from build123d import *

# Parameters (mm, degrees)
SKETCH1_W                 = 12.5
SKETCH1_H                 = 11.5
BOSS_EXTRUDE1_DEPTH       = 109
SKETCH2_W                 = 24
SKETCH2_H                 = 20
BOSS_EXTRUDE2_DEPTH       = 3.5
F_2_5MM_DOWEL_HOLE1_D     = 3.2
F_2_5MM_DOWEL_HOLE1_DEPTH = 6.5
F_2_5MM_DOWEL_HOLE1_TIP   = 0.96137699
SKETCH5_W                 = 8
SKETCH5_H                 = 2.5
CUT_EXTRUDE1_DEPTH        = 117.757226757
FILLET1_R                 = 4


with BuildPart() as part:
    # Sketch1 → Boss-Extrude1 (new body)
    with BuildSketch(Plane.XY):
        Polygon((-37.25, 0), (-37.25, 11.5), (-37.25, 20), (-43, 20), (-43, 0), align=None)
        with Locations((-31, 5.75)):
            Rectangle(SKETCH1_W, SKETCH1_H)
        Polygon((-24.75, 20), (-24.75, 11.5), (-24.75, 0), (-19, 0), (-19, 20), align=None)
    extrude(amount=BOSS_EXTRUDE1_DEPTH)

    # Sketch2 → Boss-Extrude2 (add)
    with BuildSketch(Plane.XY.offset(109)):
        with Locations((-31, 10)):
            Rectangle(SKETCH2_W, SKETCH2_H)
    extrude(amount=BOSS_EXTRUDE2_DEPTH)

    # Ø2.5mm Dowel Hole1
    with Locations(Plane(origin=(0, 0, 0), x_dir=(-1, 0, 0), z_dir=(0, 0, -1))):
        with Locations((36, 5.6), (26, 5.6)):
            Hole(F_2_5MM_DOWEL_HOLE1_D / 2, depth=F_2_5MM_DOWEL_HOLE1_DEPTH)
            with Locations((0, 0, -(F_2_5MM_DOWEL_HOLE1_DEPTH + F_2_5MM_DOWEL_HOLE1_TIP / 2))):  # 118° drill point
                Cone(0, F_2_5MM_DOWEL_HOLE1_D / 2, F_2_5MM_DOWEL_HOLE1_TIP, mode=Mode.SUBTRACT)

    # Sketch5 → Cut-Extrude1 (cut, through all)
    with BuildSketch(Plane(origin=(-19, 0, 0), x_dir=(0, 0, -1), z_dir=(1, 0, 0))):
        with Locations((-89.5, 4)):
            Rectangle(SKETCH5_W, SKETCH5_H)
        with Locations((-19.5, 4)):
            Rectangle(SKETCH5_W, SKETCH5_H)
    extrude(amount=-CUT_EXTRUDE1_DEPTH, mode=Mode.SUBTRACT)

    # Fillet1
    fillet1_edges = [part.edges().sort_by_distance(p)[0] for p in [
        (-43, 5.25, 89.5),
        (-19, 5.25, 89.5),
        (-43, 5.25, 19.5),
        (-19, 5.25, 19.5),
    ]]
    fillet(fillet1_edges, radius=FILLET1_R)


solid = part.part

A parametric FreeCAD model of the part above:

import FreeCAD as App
import Part
import Sketcher


def edges_at(feature, points):
    """Names of the edges that pass closest to the given points."""
    edges = feature.Shape.Edges
    near = lambda p: min(range(len(edges)), key=lambda i: edges[i].distToShape(Part.Vertex(*p))[0])
    return sorted({f"Edge{near(p) + 1}" for p in points})


def add_polygon(sketch, points):
    """Adds a closed chain of lines whose ends are joined by coincident constraints."""
    first, n = sketch.GeometryCount, len(points)
    for a, b in zip(points, points[1:] + points[:1]):
        sketch.addGeometry(Part.LineSegment(App.Vector(*a, 0), App.Vector(*b, 0)), False)
    for i in range(n):
        sketch.addConstraint(Sketcher.Constraint("Coincident", first + i, 2, first + (i + 1) % n, 1))

doc = App.newDocument("Part")
body = doc.addObject("PartDesign::Body", "Body")

# Sketch on XY plane
sketch1 = doc.addObject("Sketcher::SketchObject", "Sketch")
body.addObject(sketch1)
sketch1.AttachmentSupport = (doc.XY_Plane, [""])
sketch1.MapMode = "FlatFace"
add_polygon(sketch1, [(-37, 12), (-37, 20), (-43, 20), (-43, 0), (-19, 0), (-19, 20), (-25, 20), (-25, 12)])  # lines 0-7
sketch1.addConstraint([
    Sketcher.Constraint("Vertical", 0),
    Sketcher.Constraint("Horizontal", 1),
    Sketcher.Constraint("Vertical", 2),
    Sketcher.Constraint("Horizontal", 3),
    Sketcher.Constraint("Vertical", 4),
    Sketcher.Constraint("Horizontal", 5),
    Sketcher.Constraint("Vertical", 6),
    Sketcher.Constraint("Horizontal", 7),
    Sketcher.Constraint("PointOnObject", 2, 2, -1),
    Sketcher.Constraint("Horizontal", 1, 2, 4, 2),
    Sketcher.Constraint("Equal", 1, 5),
    Sketcher.Constraint("DistanceX", 3, 1, 3, 2, 24.0),
    Sketcher.Constraint("DistanceY", 2, 2, 2, 1, 20.0),
    Sketcher.Constraint("DistanceX", 7, 2, 7, 1, 12.5),
    Sketcher.Constraint("DistanceY", 0, 1, 0, 2, 8.5),
    Sketcher.Constraint("DistanceX", 1, 2, -1, 1, 43.0),
])
pad1 = doc.addObject("PartDesign::Pad", "Pad")
body.addObject(pad1)
pad1.Profile = sketch1
pad1.Length = 109

# Sketch on XY plane
sketch2 = doc.addObject("Sketcher::SketchObject", "Sketch001")
body.addObject(sketch2)
sketch2.AttachmentSupport = (doc.XY_Plane, [""])
sketch2.MapMode = "FlatFace"
sketch2.AttachmentOffset = App.Placement(App.Vector(0, 0, 109), App.Rotation())
add_polygon(sketch2, [(-43, 20), (-43, 0), (-19, 0), (-19, 20)])  # lines 0-3
sketch2.addConstraint([
    Sketcher.Constraint("Vertical", 0),
    Sketcher.Constraint("Horizontal", 1),
    Sketcher.Constraint("Vertical", 2),
    Sketcher.Constraint("Horizontal", 3),
    Sketcher.Constraint("PointOnObject", 0, 2, -1),
    Sketcher.Constraint("DistanceX", 1, 1, 1, 2, 24.0),
    Sketcher.Constraint("DistanceY", 0, 2, 0, 1, 20.0),
    Sketcher.Constraint("DistanceX", 0, 2, -1, 1, 43.0),
])
pad2 = doc.addObject("PartDesign::Pad", "Pad001")
body.addObject(pad2)
pad2.Profile = sketch2
pad2.Length = 3.5

# Sketch on XY plane
sketch3 = doc.addObject("Sketcher::SketchObject", "Sketch002")
body.addObject(sketch3)
sketch3.AttachmentSupport = (doc.XY_Plane, [""])
sketch3.MapMode = "FlatFace"
sketch3.addGeometry([
    Part.Circle(App.Vector(-36, 5.6, 0), App.Vector(0, 0, 1), 1.6),
    Part.Circle(App.Vector(-26, 5.6, 0), App.Vector(0, 0, 1), 1.6),
], False)
sketch3.addConstraint([
    Sketcher.Constraint("Equal", 0, 1),
    Sketcher.Constraint("Horizontal", 0, 3, 1, 3),
    Sketcher.Constraint("Diameter", 0, 3.2),
    Sketcher.Constraint("DistanceX", 0, 3, -1, 1, 36.0),
    Sketcher.Constraint("DistanceX", 1, 3, -1, 1, 26.0),
    Sketcher.Constraint("DistanceY", -1, 1, 0, 3, 5.6),
])
doc.recompute()
hole = doc.addObject("PartDesign::Hole", "Hole")
body.addObject(hole)
hole.Profile = sketch3
hole.ThreadType = "None"
hole.Diameter = 3.2
hole.DepthType = "Dimension"
hole.Depth = 6.5
hole.DrillPoint = "Angled"
hole.DrillPointAngle = 118
hole.Reversed = True

# Sketch on YZ plane
sketch4 = doc.addObject("Sketcher::SketchObject", "Sketch003")
body.addObject(sketch4)
sketch4.AttachmentSupport = (doc.YZ_Plane, [""])
sketch4.MapMode = "FlatFace"
sketch4.AttachmentOffset = App.Placement(App.Vector(0, 0, -19), App.Rotation())
add_polygon(sketch4, [(5.2, 93.5), (2.8, 93.5), (2.8, 85.5), (5.2, 85.5)])  # lines 0-3
add_polygon(sketch4, [(5.2, 23.5), (2.8, 23.5), (2.8, 15.5), (5.2, 15.5)])  # lines 4-7
sketch4.addConstraint([
    Sketcher.Constraint("Horizontal", 0),
    Sketcher.Constraint("Vertical", 1),
    Sketcher.Constraint("Horizontal", 2),
    Sketcher.Constraint("Vertical", 3),
    Sketcher.Constraint("Horizontal", 4),
    Sketcher.Constraint("Vertical", 5),
    Sketcher.Constraint("Horizontal", 6),
    Sketcher.Constraint("Vertical", 7),
    Sketcher.Constraint("Vertical", 1, 2, 4, 2),
    Sketcher.Constraint("Vertical", 3, 2, 6, 2),
    Sketcher.Constraint("Equal", 3, 5),
    Sketcher.Constraint("DistanceY", 1, 2, 1, 1, 8.0),
    Sketcher.Constraint("DistanceX", 0, 2, 0, 1, 2.5),
    Sketcher.Constraint("DistanceY", 4, 2, 1, 2, 62.0),
    Sketcher.Constraint("DistanceY", -1, 1, 0, 2, 93.5),
    Sketcher.Constraint("DistanceX", -1, 1, 0, 2, 2.75),
])
pocket1 = doc.addObject("PartDesign::Pocket", "Pocket")
body.addObject(pocket1)
pocket1.Profile = sketch4
pocket1.Type = "ThroughAll"
doc.recompute()

fillet = doc.addObject("PartDesign::Fillet", "Fillet")
body.addObject(fillet)
fillet.Base = (pocket1, edges_at(pocket1, [
    (-43, 5.25, 89.5),
    (-19, 5.25, 89.5),
    (-43, 5.25, 19.5),
    (-19, 5.25, 19.5),
]))
fillet.Radius = 4

doc.recompute()
